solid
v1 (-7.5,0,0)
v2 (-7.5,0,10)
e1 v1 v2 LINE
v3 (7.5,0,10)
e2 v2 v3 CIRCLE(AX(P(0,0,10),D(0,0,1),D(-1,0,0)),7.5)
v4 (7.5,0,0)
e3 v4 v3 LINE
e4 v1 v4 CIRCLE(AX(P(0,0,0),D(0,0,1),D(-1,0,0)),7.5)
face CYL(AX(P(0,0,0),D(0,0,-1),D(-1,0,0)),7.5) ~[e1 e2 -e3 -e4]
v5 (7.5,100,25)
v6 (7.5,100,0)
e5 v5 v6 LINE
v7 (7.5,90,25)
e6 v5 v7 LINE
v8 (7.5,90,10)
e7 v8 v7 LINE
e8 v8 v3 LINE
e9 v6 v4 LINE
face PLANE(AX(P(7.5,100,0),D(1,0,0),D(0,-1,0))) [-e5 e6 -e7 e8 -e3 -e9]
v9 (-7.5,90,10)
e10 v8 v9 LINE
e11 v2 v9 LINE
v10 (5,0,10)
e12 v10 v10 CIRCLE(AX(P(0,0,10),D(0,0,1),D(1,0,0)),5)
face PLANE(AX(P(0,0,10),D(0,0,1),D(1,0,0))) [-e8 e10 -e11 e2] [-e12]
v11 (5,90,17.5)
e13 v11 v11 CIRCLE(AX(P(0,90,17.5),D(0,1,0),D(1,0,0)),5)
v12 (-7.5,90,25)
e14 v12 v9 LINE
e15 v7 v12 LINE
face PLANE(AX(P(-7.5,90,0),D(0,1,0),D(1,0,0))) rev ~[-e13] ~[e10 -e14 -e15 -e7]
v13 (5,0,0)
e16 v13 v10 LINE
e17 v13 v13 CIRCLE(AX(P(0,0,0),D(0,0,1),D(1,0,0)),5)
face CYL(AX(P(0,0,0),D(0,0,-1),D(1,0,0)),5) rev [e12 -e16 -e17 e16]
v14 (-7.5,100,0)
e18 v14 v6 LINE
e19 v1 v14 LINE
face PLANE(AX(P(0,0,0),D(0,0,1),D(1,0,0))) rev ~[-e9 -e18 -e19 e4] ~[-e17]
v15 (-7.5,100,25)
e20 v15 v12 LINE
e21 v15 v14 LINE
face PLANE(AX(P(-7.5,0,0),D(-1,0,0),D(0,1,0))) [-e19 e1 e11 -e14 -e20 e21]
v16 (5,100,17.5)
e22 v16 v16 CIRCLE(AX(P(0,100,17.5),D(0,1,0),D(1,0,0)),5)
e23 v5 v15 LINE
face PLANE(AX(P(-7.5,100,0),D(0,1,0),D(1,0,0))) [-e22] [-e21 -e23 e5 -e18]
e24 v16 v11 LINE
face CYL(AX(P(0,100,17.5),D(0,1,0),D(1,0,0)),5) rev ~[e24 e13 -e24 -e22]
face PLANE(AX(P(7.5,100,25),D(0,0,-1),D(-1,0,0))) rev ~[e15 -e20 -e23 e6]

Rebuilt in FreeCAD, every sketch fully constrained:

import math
import FreeCAD as App
import Part
import Sketcher
from FreeCAD import Vector
Q = App.Units.Quantity


def add_polygon(sketch, points):
    """Adds a closed chain of lines whose ends are joined by coincident constraints."""
    first, n = sketch.GeometryCount, len(points)
    for a, b in zip(points, points[1:] + points[:1]):
        sketch.addGeometry(Part.LineSegment(App.Vector(*a, 0), App.Vector(*b, 0)), False)
    for i in range(n):
        sketch.addConstraint(Sketcher.Constraint("Coincident", first + i, 2, first + (i + 1) % n, 1))

doc = App.newDocument("Part")
body = doc.addObject("PartDesign::Body", "Body")

sketch1 = body.newObject("Sketcher::SketchObject", "Sketch")
sketch1.AttachmentSupport = (doc.getObject("XY_Plane"), [""])
sketch1.MapMode = "FlatFace"
sketch1.addGeometry([
    Part.LineSegment(Vector(-8, 100, 0), Vector(-8, 0, 0)),
    Part.ArcOfCircle(Part.Circle(Vector(0, 0, 0), Vector(0, 0, 1), 8), math.radians(180), math.radians(360)),
    Part.LineSegment(Vector(8, 0, 0), Vector(8, 100, 0)),
    Part.LineSegment(Vector(8, 100, 0), Vector(-8, 100, 0)),
    Part.Circle(Vector(0, 0, 0), Vector(0, 0, 1), 5),
], False)
sketch1.addConstraint([
    Sketcher.Constraint("Tangent", 0, 2, 1, 1),
    Sketcher.Constraint("Tangent", 1, 2, 2, 1),
    Sketcher.Constraint("Coincident", 2, 2, 3, 1),
    Sketcher.Constraint("Coincident", 3, 2, 0, 1),
    Sketcher.Constraint("Vertical", 0),
    Sketcher.Constraint("Vertical", 2),
    Sketcher.Constraint("Horizontal", 3),
    Sketcher.Constraint("Coincident", 1, 3, -1, 1),
    Sketcher.Constraint("Coincident", 4, 3, -1, 1),
    Sketcher.Constraint("Diameter", 4, Q("10 mm")),
    Sketcher.Constraint("Radius", 1, Q("7.5 mm")),
    Sketcher.Constraint("DistanceY", 0, 2, 0, 1, Q("100 mm")),
])
pad1 = body.newObject("PartDesign::Pad", "Pad")
pad1.Profile = sketch1
pad1.Length = 10

sketch2 = body.newObject("Sketcher::SketchObject", "Sketch001")
sketch2.AttachmentSupport = (doc.getObject("XZ_Plane"), [""])
sketch2.MapMode = "FlatFace"
sketch2.AttachmentOffset = App.Placement(Vector(0, 0, -100), App.Rotation())
add_polygon(sketch2, [(8, 25), (8, 10), (-8, 10), (-8, 25)])
sketch2.addGeometry(Part.Circle(Vector(0, 18, 0), Vector(0, 0, 1), 5), False)
sketch2.addConstraint([
    Sketcher.Constraint("Vertical", 0),
    Sketcher.Constraint("Horizontal", 1),
    Sketcher.Constraint("Vertical", 2),
    Sketcher.Constraint("Horizontal", 3),
    Sketcher.Constraint("PointOnObject", 4, 3, -2),
    Sketcher.Constraint("Equal", 3, 0),
    Sketcher.Constraint("Diameter", 4, Q("10 mm")),
    Sketcher.Constraint("DistanceX", 1, 2, 1, 1, Q("15 mm")),
    Sketcher.Constraint("DistanceY", -1, 1, 0, 2, Q("10 mm")),
    Sketcher.Constraint("DistanceY", -1, 1, 4, 3, Q("17.5 mm")),
    Sketcher.Constraint("DistanceX", -1, 1, 0, 2, Q("7.5 mm")),
])
pad2 = body.newObject("PartDesign::Pad", "Pad001")
pad2.Profile = sketch2
pad2.Length = 10

doc.recompute()
